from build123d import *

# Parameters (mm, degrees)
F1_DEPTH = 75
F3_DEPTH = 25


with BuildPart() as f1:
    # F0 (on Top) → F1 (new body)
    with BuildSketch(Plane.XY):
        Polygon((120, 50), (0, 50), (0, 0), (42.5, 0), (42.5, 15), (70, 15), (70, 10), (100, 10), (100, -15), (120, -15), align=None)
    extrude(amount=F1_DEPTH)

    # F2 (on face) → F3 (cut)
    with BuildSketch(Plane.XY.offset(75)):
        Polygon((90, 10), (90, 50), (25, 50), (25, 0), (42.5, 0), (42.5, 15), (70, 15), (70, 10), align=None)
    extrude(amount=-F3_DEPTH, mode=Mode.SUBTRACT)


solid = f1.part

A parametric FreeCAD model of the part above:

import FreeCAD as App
import Part
import Sketcher


def add_polygon(sketch, points):
    """Adds a closed chain of lines whose ends are joined by coincident constraints."""
    first, n = sketch.GeometryCount, len(points)
    for a, b in zip(points, points[1:] + points[:1]):
        sketch.addGeometry(Part.LineSegment(App.Vector(*a, 0), App.Vector(*b, 0)), False)
    for i in range(n):
        sketch.addConstraint(Sketcher.Constraint("Coincident", first + i, 2, first + (i + 1) % n, 1))

doc = App.newDocument("Part")
params = doc.addObject("Spreadsheet::Sheet", "Params")
for row, (alias, value) in enumerate([
    ("sketch1_width", "120 mm"),
    ("sketch1_width2", "30 mm"),
    ("sketch1_width3", "20 mm"),
    ("sketch1_height", "50 mm"),
    ("sketch1_height2", "15 mm"),
    ("pad1_length", "75 mm"),
    ("sketch2_width", "65 mm"),
    ("sketch2_width2", "20 mm"),
    ("sketch2_height", "40 mm"),
    ("sketch2_height2", "50 mm"),
    ("sketch2_height3", "15 mm"),
    ("pocket1_length", "25 mm"),
], start=1):
    params.set(f"A{row}", alias)
    params.set(f"B{row}", "=" + value)
    params.setAlias(f"B{row}", alias)

body = doc.addObject("PartDesign::Body", "Body")

# Sketch on XY plane
sketch1 = body.newObject("Sketcher::SketchObject", "Sketch")
sketch1.AttachmentSupport = (doc.getObject("XY_Plane"), [""])
sketch1.MapMode = "FlatFace"
add_polygon(sketch1, [(120, 50), (0, 50), (0, 0), (42, 0), (42, 15), (70, 15), (70, 10), (100, 10), (100, -15), (120, -15)])  # lines 0-9
sketch1.addConstraint(Sketcher.Constraint("Horizontal", 0))
sketch1.addConstraint(Sketcher.Constraint("Vertical", 1))
sketch1.addConstraint(Sketcher.Constraint("Horizontal", 2))
sketch1.addConstraint(Sketcher.Constraint("Vertical", 3))
sketch1.addConstraint(Sketcher.Constraint("Horizontal", 4))
sketch1.addConstraint(Sketcher.Constraint("Vertical", 5))
sketch1.addConstraint(Sketcher.Constraint("Horizontal", 6))
sketch1.addConstraint(Sketcher.Constraint("Vertical", 7))
sketch1.addConstraint(Sketcher.Constraint("Horizontal", 8))
sketch1.addConstraint(Sketcher.Constraint("Vertical", 9))
sketch1.addConstraint(Sketcher.Constraint("Coincident", 1, 2, -1, 1))
sketch1.addConstraint(Sketcher.Constraint("DistanceX", 0, 2, 0, 1, 120.0))
sketch1.addConstraint(Sketcher.Constraint("DistanceX", 6, 1, 6, 2, 30.0))
sketch1.addConstraint(Sketcher.Constraint("DistanceX", 8, 1, 8, 2, 20.0))
sketch1.addConstraint(Sketcher.Constraint("DistanceY", 1, 2, 1, 1, 50.0))
sketch1.addConstraint(Sketcher.Constraint("DistanceY", 3, 1, 3, 2, 15.0))
sketch1.addConstraint(Sketcher.Constraint("DistanceY", 5, 2, 5, 1, 5.0))
sketch1.addConstraint(Sketcher.Constraint("DistanceY", 7, 2, 7, 1, 25.0))
sketch1.addConstraint(Sketcher.Constraint("DistanceX", 2, 1, 2, 2, 42.5))
sketch1.setExpression("Constraints[21]", "Params.sketch1_width")
sketch1.setExpression("Constraints[22]", "Params.sketch1_width2")
sketch1.setExpression("Constraints[23]", "Params.sketch1_width3")
sketch1.setExpression("Constraints[24]", "Params.sketch1_height")
sketch1.setExpression("Constraints[25]", "Params.sketch1_height2")
pad1 = body.newObject("PartDesign::Pad", "Pad")
pad1.Profile = sketch1
pad1.setExpression("Length", "Params.pad1_length")

# Sketch on XY plane
sketch2 = body.newObject("Sketcher::SketchObject", "Sketch001")
sketch2.AttachmentSupport = (doc.getObject("XY_Plane"), [""])
sketch2.MapMode = "FlatFace"
sketch2.AttachmentOffset = App.Placement(App.Vector(0, 0, 75), App.Rotation())
add_polygon(sketch2, [(90, 10), (90, 50), (25, 50), (25, 0), (42, 0), (42, 15), (70, 15), (70, 10)])  # lines 0-7
sketch2.addConstraint(Sketcher.Constraint("Vertical", 0))
sketch2.addConstraint(Sketcher.Constraint("Horizontal", 1))
sketch2.addConstraint(Sketcher.Constraint("Vertical", 2))
sketch2.addConstraint(Sketcher.Constraint("Horizontal", 3))
sketch2.addConstraint(Sketcher.Constraint("Vertical", 4))
sketch2.addConstraint(Sketcher.Constraint("Horizontal", 5))
sketch2.addConstraint(Sketcher.Constraint("Vertical", 6))
sketch2.addConstraint(Sketcher.Constraint("Horizontal", 7))
sketch2.addConstraint(Sketcher.Constraint("PointOnObject", 2, 2, -1))
sketch2.addConstraint(Sketcher.Constraint("DistanceX", 1, 2, 1, 1, 65.0))
sketch2.addConstraint(Sketcher.Constraint("DistanceX", 7, 1, 7, 2, 20.0))
sketch2.addConstraint(Sketcher.Constraint("DistanceY", 0, 1, 0, 2, 40.0))
sketch2.addConstraint(Sketcher.Constraint("DistanceY", 2, 2, 2, 1, 50.0))
sketch2.addConstraint(Sketcher.Constraint("DistanceY", 4, 1, 4, 2, 15.0))
sketch2.addConstraint(Sketcher.Constraint("DistanceX", 3, 1, 3, 2, 17.5))
sketch2.addConstraint(Sketcher.Constraint("DistanceX", -1, 1, 0, 2, 90.0))
sketch2.setExpression("Constraints[17]", "Params.sketch2_width")
sketch2.setExpression("Constraints[18]", "Params.sketch2_width2")
sketch2.setExpression("Constraints[19]", "Params.sketch2_height")
sketch2.setExpression("Constraints[20]", "Params.sketch2_height2")
sketch2.setExpression("Constraints[21]", "Params.sketch2_height3")
pocket1 = body.newObject("PartDesign::Pocket", "Pocket")
pocket1.Profile = sketch2
pocket1.setExpression("Length", "Params.pocket1_length")

doc.recompute()
